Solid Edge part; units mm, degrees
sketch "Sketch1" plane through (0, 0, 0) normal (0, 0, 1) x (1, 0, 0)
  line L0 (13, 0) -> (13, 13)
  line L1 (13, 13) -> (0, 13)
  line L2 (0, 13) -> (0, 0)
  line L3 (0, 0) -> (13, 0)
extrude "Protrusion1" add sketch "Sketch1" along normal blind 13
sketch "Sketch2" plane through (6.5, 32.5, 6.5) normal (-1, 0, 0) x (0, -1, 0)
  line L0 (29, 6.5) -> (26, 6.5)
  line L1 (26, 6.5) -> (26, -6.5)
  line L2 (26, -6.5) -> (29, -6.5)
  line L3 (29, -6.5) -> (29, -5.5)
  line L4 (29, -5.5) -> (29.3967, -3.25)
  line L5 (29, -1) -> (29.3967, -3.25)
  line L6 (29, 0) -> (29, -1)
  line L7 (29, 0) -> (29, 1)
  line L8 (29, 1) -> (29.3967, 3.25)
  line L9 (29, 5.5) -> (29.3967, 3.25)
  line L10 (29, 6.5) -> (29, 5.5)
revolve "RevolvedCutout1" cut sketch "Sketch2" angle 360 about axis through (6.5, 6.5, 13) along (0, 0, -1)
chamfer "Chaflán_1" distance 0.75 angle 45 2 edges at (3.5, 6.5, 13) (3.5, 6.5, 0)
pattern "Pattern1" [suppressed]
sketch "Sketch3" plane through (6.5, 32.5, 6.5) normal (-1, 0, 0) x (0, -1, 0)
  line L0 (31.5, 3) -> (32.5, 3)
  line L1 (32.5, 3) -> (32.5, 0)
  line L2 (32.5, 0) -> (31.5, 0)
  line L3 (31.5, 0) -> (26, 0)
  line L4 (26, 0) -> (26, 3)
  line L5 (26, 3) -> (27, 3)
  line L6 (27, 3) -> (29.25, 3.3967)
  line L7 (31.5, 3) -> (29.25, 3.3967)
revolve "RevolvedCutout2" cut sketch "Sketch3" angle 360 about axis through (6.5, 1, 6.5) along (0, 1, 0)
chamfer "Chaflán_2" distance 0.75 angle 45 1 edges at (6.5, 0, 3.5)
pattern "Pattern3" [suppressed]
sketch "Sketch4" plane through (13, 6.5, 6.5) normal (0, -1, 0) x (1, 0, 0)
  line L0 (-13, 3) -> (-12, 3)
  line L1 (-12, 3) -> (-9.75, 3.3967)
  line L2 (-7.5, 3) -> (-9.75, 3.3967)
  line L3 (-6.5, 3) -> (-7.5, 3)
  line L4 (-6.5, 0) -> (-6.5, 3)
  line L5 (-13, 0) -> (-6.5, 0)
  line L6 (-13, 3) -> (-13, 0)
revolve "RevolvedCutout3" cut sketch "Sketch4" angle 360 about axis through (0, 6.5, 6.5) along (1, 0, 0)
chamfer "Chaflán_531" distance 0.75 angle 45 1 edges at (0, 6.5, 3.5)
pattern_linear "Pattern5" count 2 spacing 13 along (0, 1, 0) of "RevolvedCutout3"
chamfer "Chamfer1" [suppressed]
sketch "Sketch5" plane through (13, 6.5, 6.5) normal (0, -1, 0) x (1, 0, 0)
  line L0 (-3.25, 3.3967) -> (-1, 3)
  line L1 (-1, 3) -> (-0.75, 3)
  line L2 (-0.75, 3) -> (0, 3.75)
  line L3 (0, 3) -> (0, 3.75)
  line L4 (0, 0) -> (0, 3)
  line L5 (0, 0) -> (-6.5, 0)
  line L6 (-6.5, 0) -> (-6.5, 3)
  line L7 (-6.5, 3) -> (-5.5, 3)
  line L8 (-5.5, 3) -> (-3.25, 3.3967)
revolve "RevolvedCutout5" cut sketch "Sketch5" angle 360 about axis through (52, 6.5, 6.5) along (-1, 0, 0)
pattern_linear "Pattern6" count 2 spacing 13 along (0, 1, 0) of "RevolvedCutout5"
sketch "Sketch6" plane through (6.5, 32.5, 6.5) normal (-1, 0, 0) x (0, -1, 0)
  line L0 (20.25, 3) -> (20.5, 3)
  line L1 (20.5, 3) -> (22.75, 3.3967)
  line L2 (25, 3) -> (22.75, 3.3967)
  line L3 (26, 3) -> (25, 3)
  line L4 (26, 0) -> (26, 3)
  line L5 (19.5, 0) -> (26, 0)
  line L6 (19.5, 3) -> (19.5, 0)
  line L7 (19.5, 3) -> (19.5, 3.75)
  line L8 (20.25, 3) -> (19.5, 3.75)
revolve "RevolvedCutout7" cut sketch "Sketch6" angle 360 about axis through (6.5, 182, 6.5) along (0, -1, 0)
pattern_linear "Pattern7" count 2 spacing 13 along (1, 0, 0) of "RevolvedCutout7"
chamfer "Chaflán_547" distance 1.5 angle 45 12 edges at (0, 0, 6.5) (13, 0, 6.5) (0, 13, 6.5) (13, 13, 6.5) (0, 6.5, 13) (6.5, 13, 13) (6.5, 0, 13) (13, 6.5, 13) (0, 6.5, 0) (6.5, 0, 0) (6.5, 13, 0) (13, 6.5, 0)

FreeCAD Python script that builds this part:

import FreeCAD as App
import Part
import Sketcher

V = App.Vector
Q = App.Units.Quantity


def edges_at(feature, points):
    """Names of the edges that pass closest to the given points."""
    edges = feature.Shape.Edges
    near = lambda p: min(range(len(edges)), key=lambda i: edges[i].distToShape(Part.Vertex(*p))[0])
    return sorted({f"Edge{near(p) + 1}" for p in points})


def add_polygon(sketch, points):
    """Adds a closed chain of lines whose ends are joined by coincident constraints."""
    first, n = sketch.GeometryCount, len(points)
    for a, b in zip(points, points[1:] + points[:1]):
        sketch.addGeometry(Part.LineSegment(App.Vector(*a, 0), App.Vector(*b, 0)), False)
    for i in range(n):
        sketch.addConstraint(Sketcher.Constraint("Coincident", first + i, 2, first + (i + 1) % n, 1))

doc = App.newDocument("Part")
params = doc.addObject("Spreadsheet::Sheet", "Params")
for row, (alias, value) in enumerate([
    ("sketch1_width", "13 mm"),
    ("pad1_length", "13 mm"),
    ("sketch2_width", "3 mm"),
    ("sketch2_height", "1 mm"),
    ("sketch2_height2", "13 mm"),
    ("sketch2_height3", "2 mm"),
    ("groove_angle", "360 deg"),
    ("chamfer_size", "0.75 mm"),
    ("sketch3_width", "1 mm"),
    ("sketch3_height", "3 mm"),
    ("sketch3_width2", "6.5 mm"),
    ("groove2_angle", "360 deg"),
    ("chamfer2_size", "0.75 mm"),
    ("sketch4_width", "1 mm"),
    ("sketch4_height", "3 mm"),
    ("sketch4_width2", "6.5 mm"),
    ("groove3_angle", "360 deg"),
    ("chamfer3_size", "0.75 mm"),
    ("linearpattern_pitch", "13 mm"),
    ("sketch5_width", "1 mm"),
    ("sketch5_height", "3 mm"),
    ("sketch5_width2", "6.5 mm"),
    ("sketch5_width3", "0.25 mm"),
    ("groove4_angle", "360 deg"),
    ("linearpattern2_pitch", "13 mm"),
    ("sketch6_width", "1 mm"),
    ("sketch6_height", "3 mm"),
    ("sketch6_width2", "6.5 mm"),
    ("sketch6_width3", "0.25 mm"),
    ("groove5_angle", "360 deg"),
    ("linearpattern3_pitch", "13 mm"),
    ("chamfer4_size", "1.5 mm"),
], start=1):
    params.set(f"A{row}", alias)
    params.set(f"B{row}", "=" + value)
    params.setAlias(f"B{row}", alias)

body = doc.addObject("PartDesign::Body", "Body")

# Sketch on XY plane
sketch1 = body.newObject("Sketcher::SketchObject", "Sketch")
sketch1.AttachmentSupport = (doc.getObject("XY_Plane"), [""])
sketch1.MapMode = "FlatFace"
add_polygon(sketch1, [(0, 0), (13, 0), (13, 13), (0, 13)])  # lines 0-3
sketch1.addConstraint([
    Sketcher.Constraint("Horizontal", 0),
    Sketcher.Constraint("Vertical", 1),
    Sketcher.Constraint("Horizontal", 2),
    Sketcher.Constraint("Vertical", 3),
    Sketcher.Constraint("Coincident", 3, 2, -1, 1),
    Sketcher.Constraint("Equal", 2, 1),
    Sketcher.Constraint("DistanceX", 0, 1, 0, 2, 13.0),
])
sketch1.setExpression("Constraints[10]", "Params.sketch1_width")
pad1 = body.newObject("PartDesign::Pad", "Pad")
pad1.Profile = sketch1
pad1.setExpression("Length", "Params.pad1_length")

# Sketch on YZ plane
sketch2 = body.newObject("Sketcher::SketchObject", "Sketch001")
sketch2.AttachmentSupport = (doc.getObject("YZ_Plane"), [""])
sketch2.MapMode = "FlatFace"
sketch2.AttachmentOffset = App.Placement(V(0, 0, 6.5), App.Rotation())
add_polygon(sketch2, [(3.5, 12), (3.5, 13), (6.5, 13), (6.5, 0), (3.5, 0), (3.5, 1), (3.1, 3.2), (3.5, 5.5), (3.5, 7.5), (3.1, 9.8)])  # lines 0-9
sketch2.addGeometry(Part.LineSegment(V(6.5, 13, 0), V(6.5, 0, 0)), True)  # axis
sketch2.addConstraint([
    Sketcher.Constraint("Vertical", 0),
    Sketcher.Constraint("Horizontal", 1),
    Sketcher.Constraint("Vertical", 2),
    Sketcher.Constraint("Horizontal", 3),
    Sketcher.Constraint("Vertical", 4),
    Sketcher.Constraint("Vertical", 7),
    Sketcher.Constraint("Vertical", 10),
    Sketcher.Constraint("Coincident", 10, 1, 1, 2),
    Sketcher.Constraint("PointOnObject", 2, 2, -1),
    Sketcher.Constraint("PointOnObject", 10, 2, -1),
    Sketcher.Constraint("Parallel", 5, 8),
    Sketcher.Constraint("Parallel", 6, 9),
    Sketcher.Constraint("Vertical", 0, 2, 3, 2),
    Sketcher.Constraint("Vertical", 4, 2, 6, 2),
    Sketcher.Constraint("Vertical", 5, 2, 8, 2),
    Sketcher.Constraint("Equal", 0, 4),
    Sketcher.Constraint("Equal", 5, 6),
    Sketcher.Constraint("DistanceX", 1, 1, 1, 2, 3.0),
    Sketcher.Constraint("DistanceY", 0, 1, 0, 2, 1.0),
    Sketcher.Constraint("DistanceY", 2, 2, 2, 1, 13.0),
    Sketcher.Constraint("DistanceY", 7, 1, 7, 2, 2.0),
    Sketcher.Constraint("Angle", 5, Q("99.999 deg")),
    Sketcher.Constraint("DistanceX", -1, 1, 0, 2, 3.5),
])
sketch2.setExpression("Constraints[27]", "Params.sketch2_width")
sketch2.setExpression("Constraints[28]", "Params.sketch2_height")
sketch2.setExpression("Constraints[29]", "Params.sketch2_height2")
sketch2.setExpression("Constraints[30]", "Params.sketch2_height3")
groove = body.newObject("PartDesign::Groove", "Groove")
groove.Profile = sketch2
groove.ReferenceAxis = (sketch2, ["Axis0"])
groove.setExpression("Angle", "Params.groove_angle")
doc.recompute()

chamfer = body.newObject("PartDesign::Chamfer", "Chamfer")
chamfer.Base = (groove, edges_at(groove, [(3.5, 6.5, 13), (3.5, 6.5, 0)]))
chamfer.setExpression("Size", "Params.chamfer_size")

# Sketch on YZ plane
sketch3 = body.newObject("Sketcher::SketchObject", "Sketch002")
sketch3.AttachmentSupport = (doc.getObject("YZ_Plane"), [""])
sketch3.MapMode = "FlatFace"
sketch3.AttachmentOffset = App.Placement(V(0, 0, 6.5), App.Rotation())
add_polygon(sketch3, [(0, 9.5), (1, 9.5), (3.2, 9.9), (5.5, 9.5), (6.5, 9.5), (6.5, 6.5), (0, 6.5)])  # lines 0-6
sketch3.addGeometry(Part.LineSegment(V(0, 6.5, 0), V(6.5, 6.5, 0)), True)  # axis
sketch3.addConstraint([
    Sketcher.Constraint("Horizontal", 0),
    Sketcher.Constraint("Horizontal", 3),
    Sketcher.Constraint("Vertical", 4),
    Sketcher.Constraint("Horizontal", 5),
    Sketcher.Constraint("Vertical", 6),
    Sketcher.Constraint("Horizontal", 7),
    Sketcher.Constraint("Coincident", 7, 1, 5, 2),
    Sketcher.Constraint("PointOnObject", 5, 2, -2),
    Sketcher.Constraint("Horizontal", 0, 2, 2, 2),
    Sketcher.Constraint("Vertical", 3, 2, 7, 2),
    Sketcher.Constraint("Equal", 0, 3),
    Sketcher.Constraint("Equal", 1, 2),
    Sketcher.Constraint("DistanceX", 0, 1, 0, 2, 1.0),
    Sketcher.Constraint("DistanceY", 4, 2, 4, 1, 3.0),
    Sketcher.Constraint("Angle", 1, Q("9.999 deg")),
    Sketcher.Constraint("DistanceX", 5, 2, 5, 1, 6.5),
    Sketcher.Constraint("DistanceY", -1, 1, 0, 2, 9.5),
])
sketch3.setExpression("Constraints[19]", "Params.sketch3_width")
sketch3.setExpression("Constraints[20]", "Params.sketch3_height")
sketch3.setExpression("Constraints[22]", "Params.sketch3_width2")
groove2 = body.newObject("PartDesign::Groove", "Groove001")
groove2.Profile = sketch3
groove2.ReferenceAxis = (sketch3, ["Axis0"])
groove2.setExpression("Angle", "Params.groove2_angle")
doc.recompute()

chamfer2 = body.newObject("PartDesign::Chamfer", "Chamfer001")
chamfer2.Base = (groove2, edges_at(groove2, [(6.5, 0, 3.5)]))
chamfer2.setExpression("Size", "Params.chamfer2_size")

# Sketch on XZ plane
sketch4 = body.newObject("Sketcher::SketchObject", "Sketch003")
sketch4.AttachmentSupport = (doc.getObject("XZ_Plane"), [""])
sketch4.MapMode = "FlatFace"
sketch4.AttachmentOffset = App.Placement(V(0, 0, -6.5), App.Rotation())
add_polygon(sketch4, [(1, 9.5), (0, 9.5), (0, 6.5), (6.5, 6.5), (6.5, 9.5), (5.5, 9.5), (3.2, 9.9)])  # lines 0-6
sketch4.addGeometry(Part.LineSegment(V(0, 6.5, 0), V(6.5, 6.5, 0)), True)  # axis
sketch4.addConstraint([
    Sketcher.Constraint("Horizontal", 0),
    Sketcher.Constraint("Vertical", 1),
    Sketcher.Constraint("Horizontal", 2),
    Sketcher.Constraint("Vertical", 3),
    Sketcher.Constraint("Horizontal", 4),
    Sketcher.Constraint("Horizontal", 7),
    Sketcher.Constraint("Coincident", 7, 1, 1, 2),
    Sketcher.Constraint("PointOnObject", 0, 2, -2),
    Sketcher.Constraint("Horizontal", 0, 2, 3, 2),
    Sketcher.Constraint("Vertical", 3, 2, 7, 2),
    Sketcher.Constraint("Equal", 0, 4),
    Sketcher.Constraint("Equal", 5, 6),
    Sketcher.Constraint("DistanceX", 0, 2, 0, 1, 1.0),
    Sketcher.Constraint("DistanceY", 1, 2, 1, 1, 3.0),
    Sketcher.Constraint("Angle", 5, Q("170.001 deg")),
    Sketcher.Constraint("DistanceX", 2, 1, 2, 2, 6.5),
    Sketcher.Constraint("DistanceY", -1, 1, 0, 2, 9.5),
])
sketch4.setExpression("Constraints[19]", "Params.sketch4_width")
sketch4.setExpression("Constraints[20]", "Params.sketch4_height")
sketch4.setExpression("Constraints[22]", "Params.sketch4_width2")
groove3 = body.newObject("PartDesign::Groove", "Groove002")
groove3.Profile = sketch4
groove3.ReferenceAxis = (sketch4, ["Axis0"])
groove3.setExpression("Angle", "Params.groove3_angle")
doc.recompute()

chamfer3 = body.newObject("PartDesign::Chamfer", "Chamfer002")
chamfer3.Base = (groove3, edges_at(groove3, [(0, 6.5, 3.5)]))
chamfer3.setExpression("Size", "Params.chamfer3_size")
doc.recompute()

linearpattern = body.newObject("PartDesign::LinearPattern", "LinearPattern")
linearpattern.Originals = [groove3]
linearpattern.Direction = (doc.getObject("Y_Axis"), [""])
linearpattern.Mode = "offset"
linearpattern.setExpression("Offset", "Params.linearpattern_pitch")
linearpattern.Occurrences = 2
body.Tip = linearpattern

# Sketch on XZ plane
sketch5 = body.newObject("Sketcher::SketchObject", "Sketch004")
sketch5.AttachmentSupport = (doc.getObject("XZ_Plane"), [""])
sketch5.MapMode = "FlatFace"
sketch5.AttachmentOffset = App.Placement(V(0, 0, -6.5), App.Rotation())
add_polygon(sketch5, [(12, 9.5), (9.75, 9.9), (7.5, 9.5), (6.5, 9.5), (6.5, 6.5), (13, 6.5), (13, 10.25), (12.25, 9.5)])  # lines 0-7
sketch5.addGeometry(Part.LineSegment(V(13, 6.5, 0), V(6.5, 6.5, 0)), True)  # axis
sketch5.addConstraint([
    Sketcher.Constraint("Horizontal", 2),
    Sketcher.Constraint("Vertical", 3),
    Sketcher.Constraint("Horizontal", 4),
    Sketcher.Constraint("Vertical", 5),
    Sketcher.Constraint("Horizontal", 7),
    Sketcher.Constraint("Horizontal", 8),
    Sketcher.Constraint("Coincident", 8, 1, 4, 2),
    Sketcher.Constraint("Horizontal", 2, 2, 6, 2),
    Sketcher.Constraint("Vertical", 2, 2, 8, 2),
    Sketcher.Constraint("Equal", 0, 1),
    Sketcher.Constraint("DistanceX", 2, 2, 2, 1, 1.0),
    Sketcher.Constraint("DistanceY", 3, 2, 3, 1, 3.0),
    Sketcher.Constraint("Angle", 0, Q("170.001 deg")),
    Sketcher.Constraint("Angle", 6, Q("-135 deg")),
    Sketcher.Constraint("DistanceX", 4, 1, 4, 2, 6.5),
    Sketcher.Constraint("DistanceX", -1, 1, 4, 2, 13.0),
    Sketcher.Constraint("DistanceX", -1, 1, 7, 2, 12.0),
    Sketcher.Constraint("DistanceX", 7, 2, 7, 1, 0.25),
    Sketcher.Constraint("DistanceY", -1, 1, 1, 2, 9.5),
])
sketch5.setExpression("Constraints[18]", "Params.sketch5_width")
sketch5.setExpression("Constraints[19]", "Params.sketch5_height")
sketch5.setExpression("Constraints[22]", "Params.sketch5_width2")
sketch5.setExpression("Constraints[25]", "Params.sketch5_width3")
groove4 = body.newObject("PartDesign::Groove", "Groove003")
groove4.Profile = sketch5
groove4.ReferenceAxis = (sketch5, ["Axis0"])
groove4.setExpression("Angle", "Params.groove4_angle")
doc.recompute()

linearpattern2 = body.newObject("PartDesign::LinearPattern", "LinearPattern001")
linearpattern2.Originals = [groove4]
linearpattern2.Direction = (doc.getObject("Y_Axis"), [""])
linearpattern2.Mode = "offset"
linearpattern2.setExpression("Offset", "Params.linearpattern2_pitch")
linearpattern2.Occurrences = 2
body.Tip = linearpattern2

# Sketch on YZ plane
sketch6 = body.newObject("Sketcher::SketchObject", "Sketch005")
sketch6.AttachmentSupport = (doc.getObject("YZ_Plane"), [""])
sketch6.MapMode = "FlatFace"
sketch6.AttachmentOffset = App.Placement(V(0, 0, 6.5), App.Rotation())
add_polygon(sketch6, [(12, 9.5), (12.25, 9.5), (13, 10.25), (13, 6.5), (6.5, 6.5), (6.5, 9.5), (7.5, 9.5), (9.75, 9.9)])  # lines 0-7
sketch6.addGeometry(Part.LineSegment(V(13, 6.5, 0), V(6.5, 6.5, 0)), True)  # axis
sketch6.addConstraint([
    Sketcher.Constraint("Horizontal", 0),
    Sketcher.Constraint("Vertical", 2),
    Sketcher.Constraint("Horizontal", 3),
    Sketcher.Constraint("Vertical", 4),
    Sketcher.Constraint("Horizontal", 5),
    Sketcher.Constraint("Horizontal", 8),
    Sketcher.Constraint("Coincident", 8, 1, 2, 2),
    Sketcher.Constraint("Horizontal", 0, 2, 4, 2),
    Sketcher.Constraint("Vertical", 4, 2, 8, 2),
    Sketcher.Constraint("Equal", 6, 7),
    Sketcher.Constraint("DistanceX", 5, 1, 5, 2, 1.0),
    Sketcher.Constraint("DistanceY", 4, 1, 4, 2, 3.0),
    Sketcher.Constraint("Angle", 1, Q("45 deg")),
    Sketcher.Constraint("Angle", 6, Q("9.999 deg")),
    Sketcher.Constraint("DistanceX", 3, 2, 3, 1, 6.5),
    Sketcher.Constraint("DistanceX", -1, 1, 1, 2, 13.0),
    Sketcher.Constraint("DistanceX", -1, 1, 7, 2, 12.0),
    Sketcher.Constraint("DistanceX", 0, 1, 0, 2, 0.25),
    Sketcher.Constraint("DistanceY", -1, 1, 0, 2, 9.5),
])
sketch6.setExpression("Constraints[18]", "Params.sketch6_width")
sketch6.setExpression("Constraints[19]", "Params.sketch6_height")
sketch6.setExpression("Constraints[22]", "Params.sketch6_width2")
sketch6.setExpression("Constraints[25]", "Params.sketch6_width3")
groove5 = body.newObject("PartDesign::Groove", "Groove004")
groove5.Profile = sketch6
groove5.ReferenceAxis = (sketch6, ["Axis0"])
groove5.setExpression("Angle", "Params.groove5_angle")
doc.recompute()

linearpattern3 = body.newObject("PartDesign::LinearPattern", "LinearPattern002")
linearpattern3.Originals = [groove5]
linearpattern3.Direction = (doc.getObject("X_Axis"), [""])
linearpattern3.Mode = "offset"
linearpattern3.setExpression("Offset", "Params.linearpattern3_pitch")
linearpattern3.Occurrences = 2
body.Tip = linearpattern3
doc.recompute()

chamfer4 = body.newObject("PartDesign::Chamfer", "Chamfer003")
chamfer4.Base = (linearpattern3, edges_at(linearpattern3, [
    (0, 0, 6.5),
    (13, 0, 6.5),
    (0, 13, 6.5),
    (13, 13, 6.5),
    (0, 6.5, 13),
    (6.5, 13, 13),
    (6.5, 0, 13),
    (13, 6.5, 13),
    (0, 6.5, 0),
    (6.5, 0, 0),
    (6.5, 13, 0),
    (13, 6.5, 0),
]))
chamfer4.setExpression("Size", "Params.chamfer4_size")

doc.recompute()
